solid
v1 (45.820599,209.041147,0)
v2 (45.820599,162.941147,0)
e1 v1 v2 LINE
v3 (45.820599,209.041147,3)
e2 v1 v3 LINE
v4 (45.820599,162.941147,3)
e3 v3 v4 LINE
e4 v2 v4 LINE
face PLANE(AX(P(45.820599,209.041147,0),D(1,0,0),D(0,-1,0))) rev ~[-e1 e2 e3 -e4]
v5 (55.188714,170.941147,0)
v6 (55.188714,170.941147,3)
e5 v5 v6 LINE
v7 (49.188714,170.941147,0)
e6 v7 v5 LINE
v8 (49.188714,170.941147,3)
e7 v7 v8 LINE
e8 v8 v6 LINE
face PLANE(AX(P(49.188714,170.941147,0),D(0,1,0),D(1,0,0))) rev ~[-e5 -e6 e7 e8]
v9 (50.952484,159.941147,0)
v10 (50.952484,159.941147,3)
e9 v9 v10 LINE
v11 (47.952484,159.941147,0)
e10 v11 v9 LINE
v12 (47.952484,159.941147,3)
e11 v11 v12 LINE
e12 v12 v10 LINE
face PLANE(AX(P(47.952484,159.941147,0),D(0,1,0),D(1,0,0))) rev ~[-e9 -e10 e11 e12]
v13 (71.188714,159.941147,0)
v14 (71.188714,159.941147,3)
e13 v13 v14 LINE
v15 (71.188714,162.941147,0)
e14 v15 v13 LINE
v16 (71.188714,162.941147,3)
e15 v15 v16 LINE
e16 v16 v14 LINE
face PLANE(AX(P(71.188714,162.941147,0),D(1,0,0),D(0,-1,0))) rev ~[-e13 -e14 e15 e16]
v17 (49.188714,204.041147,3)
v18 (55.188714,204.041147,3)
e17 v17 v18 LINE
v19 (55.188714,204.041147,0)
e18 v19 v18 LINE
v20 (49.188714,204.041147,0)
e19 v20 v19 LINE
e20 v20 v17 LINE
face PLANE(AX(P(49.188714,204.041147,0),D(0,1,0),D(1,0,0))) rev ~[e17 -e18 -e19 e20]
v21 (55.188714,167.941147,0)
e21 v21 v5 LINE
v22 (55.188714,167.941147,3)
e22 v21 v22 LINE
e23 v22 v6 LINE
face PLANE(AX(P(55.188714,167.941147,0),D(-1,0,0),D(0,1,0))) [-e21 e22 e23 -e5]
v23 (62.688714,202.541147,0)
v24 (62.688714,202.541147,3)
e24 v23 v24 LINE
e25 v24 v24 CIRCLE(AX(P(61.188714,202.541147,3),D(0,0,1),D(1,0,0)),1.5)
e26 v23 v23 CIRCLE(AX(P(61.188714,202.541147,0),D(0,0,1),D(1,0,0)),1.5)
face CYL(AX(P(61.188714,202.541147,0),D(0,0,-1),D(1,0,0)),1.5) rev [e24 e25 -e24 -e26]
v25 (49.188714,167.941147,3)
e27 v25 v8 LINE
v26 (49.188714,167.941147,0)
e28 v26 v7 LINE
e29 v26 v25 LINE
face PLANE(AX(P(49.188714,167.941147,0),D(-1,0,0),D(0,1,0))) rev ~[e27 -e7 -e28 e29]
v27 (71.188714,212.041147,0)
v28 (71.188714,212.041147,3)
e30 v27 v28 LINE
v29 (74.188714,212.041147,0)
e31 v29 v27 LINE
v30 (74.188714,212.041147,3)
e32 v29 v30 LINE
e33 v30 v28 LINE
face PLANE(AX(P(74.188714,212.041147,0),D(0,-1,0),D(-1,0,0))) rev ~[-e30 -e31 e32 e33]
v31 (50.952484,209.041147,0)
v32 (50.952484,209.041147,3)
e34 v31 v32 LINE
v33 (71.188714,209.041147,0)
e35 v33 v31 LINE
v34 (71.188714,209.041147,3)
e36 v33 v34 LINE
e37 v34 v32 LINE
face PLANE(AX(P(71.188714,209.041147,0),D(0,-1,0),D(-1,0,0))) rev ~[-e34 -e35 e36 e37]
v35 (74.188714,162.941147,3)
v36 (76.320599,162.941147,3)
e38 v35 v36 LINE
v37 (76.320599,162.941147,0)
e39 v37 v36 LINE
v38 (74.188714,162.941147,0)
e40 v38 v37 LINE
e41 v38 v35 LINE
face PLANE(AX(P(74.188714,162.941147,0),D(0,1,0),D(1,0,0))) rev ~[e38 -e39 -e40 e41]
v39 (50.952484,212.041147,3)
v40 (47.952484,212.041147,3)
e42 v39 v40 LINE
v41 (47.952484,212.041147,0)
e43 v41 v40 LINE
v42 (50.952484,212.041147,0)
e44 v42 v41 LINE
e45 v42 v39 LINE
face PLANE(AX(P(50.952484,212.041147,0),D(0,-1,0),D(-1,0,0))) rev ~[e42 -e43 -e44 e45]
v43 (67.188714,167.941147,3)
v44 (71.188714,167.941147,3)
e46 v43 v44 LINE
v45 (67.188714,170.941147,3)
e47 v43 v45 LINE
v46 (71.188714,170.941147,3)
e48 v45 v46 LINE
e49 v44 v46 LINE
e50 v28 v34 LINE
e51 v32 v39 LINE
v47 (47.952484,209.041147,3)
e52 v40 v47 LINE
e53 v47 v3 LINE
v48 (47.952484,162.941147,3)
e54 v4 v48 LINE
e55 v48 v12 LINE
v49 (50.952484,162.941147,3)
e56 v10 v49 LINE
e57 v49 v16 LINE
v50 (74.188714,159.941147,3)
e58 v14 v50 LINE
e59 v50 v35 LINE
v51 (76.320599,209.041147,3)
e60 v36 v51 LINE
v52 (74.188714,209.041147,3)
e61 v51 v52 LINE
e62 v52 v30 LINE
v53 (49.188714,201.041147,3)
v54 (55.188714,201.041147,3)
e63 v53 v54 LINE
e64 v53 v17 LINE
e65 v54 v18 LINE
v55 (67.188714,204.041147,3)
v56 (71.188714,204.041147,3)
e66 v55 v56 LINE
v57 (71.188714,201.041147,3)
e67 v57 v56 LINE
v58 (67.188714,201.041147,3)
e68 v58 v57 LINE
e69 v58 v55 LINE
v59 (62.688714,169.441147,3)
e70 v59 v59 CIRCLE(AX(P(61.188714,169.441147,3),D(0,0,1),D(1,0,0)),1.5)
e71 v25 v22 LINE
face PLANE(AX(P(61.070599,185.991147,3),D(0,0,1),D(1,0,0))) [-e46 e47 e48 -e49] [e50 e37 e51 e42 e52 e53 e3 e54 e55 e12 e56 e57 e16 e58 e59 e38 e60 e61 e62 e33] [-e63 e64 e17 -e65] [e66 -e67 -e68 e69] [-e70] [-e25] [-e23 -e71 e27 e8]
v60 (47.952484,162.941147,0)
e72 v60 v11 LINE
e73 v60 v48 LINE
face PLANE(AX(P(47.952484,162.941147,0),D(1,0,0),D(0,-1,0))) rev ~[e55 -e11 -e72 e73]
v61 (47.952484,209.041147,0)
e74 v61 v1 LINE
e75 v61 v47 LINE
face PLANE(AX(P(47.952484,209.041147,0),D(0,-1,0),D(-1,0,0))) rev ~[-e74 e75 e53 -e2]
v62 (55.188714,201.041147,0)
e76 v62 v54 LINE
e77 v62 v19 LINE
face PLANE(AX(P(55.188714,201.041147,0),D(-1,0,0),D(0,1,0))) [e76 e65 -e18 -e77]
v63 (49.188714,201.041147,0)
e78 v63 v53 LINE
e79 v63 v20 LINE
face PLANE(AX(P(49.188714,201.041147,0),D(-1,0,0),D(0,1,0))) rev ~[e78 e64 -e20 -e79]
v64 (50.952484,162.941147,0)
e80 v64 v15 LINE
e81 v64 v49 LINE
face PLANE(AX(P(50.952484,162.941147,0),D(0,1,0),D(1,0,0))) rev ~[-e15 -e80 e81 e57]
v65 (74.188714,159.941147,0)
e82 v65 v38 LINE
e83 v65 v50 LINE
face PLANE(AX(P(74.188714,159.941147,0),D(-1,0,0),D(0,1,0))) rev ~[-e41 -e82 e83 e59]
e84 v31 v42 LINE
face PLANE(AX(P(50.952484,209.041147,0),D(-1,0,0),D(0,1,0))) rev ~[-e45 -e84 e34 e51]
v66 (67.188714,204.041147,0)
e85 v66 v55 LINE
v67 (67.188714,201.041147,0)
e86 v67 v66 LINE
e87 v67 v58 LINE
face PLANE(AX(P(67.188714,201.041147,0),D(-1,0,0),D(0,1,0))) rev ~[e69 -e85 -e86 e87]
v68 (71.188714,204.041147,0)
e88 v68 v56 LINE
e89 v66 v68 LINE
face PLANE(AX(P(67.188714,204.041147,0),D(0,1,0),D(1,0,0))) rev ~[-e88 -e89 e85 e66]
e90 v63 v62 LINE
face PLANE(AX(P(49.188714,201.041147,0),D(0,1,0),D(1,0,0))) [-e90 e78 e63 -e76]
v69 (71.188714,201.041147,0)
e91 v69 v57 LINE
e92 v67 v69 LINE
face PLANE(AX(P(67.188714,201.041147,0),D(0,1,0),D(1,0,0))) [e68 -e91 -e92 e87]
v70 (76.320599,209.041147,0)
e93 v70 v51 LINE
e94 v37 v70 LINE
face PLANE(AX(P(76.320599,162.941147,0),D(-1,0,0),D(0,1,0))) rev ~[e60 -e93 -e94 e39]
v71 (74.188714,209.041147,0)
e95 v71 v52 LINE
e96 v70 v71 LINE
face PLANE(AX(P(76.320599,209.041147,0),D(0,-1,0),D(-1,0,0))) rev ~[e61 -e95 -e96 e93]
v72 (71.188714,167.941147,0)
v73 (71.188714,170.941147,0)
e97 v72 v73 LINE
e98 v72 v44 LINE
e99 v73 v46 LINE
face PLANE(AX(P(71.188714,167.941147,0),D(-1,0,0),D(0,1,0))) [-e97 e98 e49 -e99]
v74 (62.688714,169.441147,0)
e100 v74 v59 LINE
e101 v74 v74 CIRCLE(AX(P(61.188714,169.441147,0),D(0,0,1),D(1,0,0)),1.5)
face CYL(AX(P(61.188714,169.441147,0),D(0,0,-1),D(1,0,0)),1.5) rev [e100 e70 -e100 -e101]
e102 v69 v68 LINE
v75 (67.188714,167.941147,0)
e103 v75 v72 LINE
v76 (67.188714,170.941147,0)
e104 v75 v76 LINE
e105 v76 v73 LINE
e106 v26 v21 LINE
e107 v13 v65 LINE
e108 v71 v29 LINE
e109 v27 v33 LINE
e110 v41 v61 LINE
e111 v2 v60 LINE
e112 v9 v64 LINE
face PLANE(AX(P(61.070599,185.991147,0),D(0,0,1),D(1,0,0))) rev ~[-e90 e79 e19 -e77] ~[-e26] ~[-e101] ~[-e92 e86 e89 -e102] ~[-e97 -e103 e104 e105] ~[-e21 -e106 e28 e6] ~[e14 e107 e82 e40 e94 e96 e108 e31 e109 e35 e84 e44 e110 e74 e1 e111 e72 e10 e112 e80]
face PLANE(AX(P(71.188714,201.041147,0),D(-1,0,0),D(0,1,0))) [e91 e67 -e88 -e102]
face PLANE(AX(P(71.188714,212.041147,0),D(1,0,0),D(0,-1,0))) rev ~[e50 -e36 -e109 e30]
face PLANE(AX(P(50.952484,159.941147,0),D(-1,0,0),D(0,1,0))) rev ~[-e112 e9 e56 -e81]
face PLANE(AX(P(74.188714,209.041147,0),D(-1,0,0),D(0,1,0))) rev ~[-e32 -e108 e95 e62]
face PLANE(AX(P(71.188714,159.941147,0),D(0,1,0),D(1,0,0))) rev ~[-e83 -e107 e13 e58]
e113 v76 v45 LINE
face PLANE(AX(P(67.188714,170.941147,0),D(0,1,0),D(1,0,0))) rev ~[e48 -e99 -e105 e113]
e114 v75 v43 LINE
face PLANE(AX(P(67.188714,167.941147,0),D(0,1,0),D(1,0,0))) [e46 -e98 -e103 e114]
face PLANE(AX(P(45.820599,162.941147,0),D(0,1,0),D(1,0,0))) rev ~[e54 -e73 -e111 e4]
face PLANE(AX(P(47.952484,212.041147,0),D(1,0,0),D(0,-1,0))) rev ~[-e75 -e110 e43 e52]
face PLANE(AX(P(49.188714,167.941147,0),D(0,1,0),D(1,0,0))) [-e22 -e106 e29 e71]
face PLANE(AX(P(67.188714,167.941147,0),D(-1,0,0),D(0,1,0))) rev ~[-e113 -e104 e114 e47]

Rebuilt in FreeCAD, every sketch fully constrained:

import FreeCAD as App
import Part
import Sketcher
from FreeCAD import Vector


def add_polygon(sketch, points):
    """Adds a closed chain of lines whose ends are joined by coincident constraints."""
    first, n = sketch.GeometryCount, len(points)
    for a, b in zip(points, points[1:] + points[:1]):
        sketch.addGeometry(Part.LineSegment(App.Vector(*a, 0), App.Vector(*b, 0)), False)
    for i in range(n):
        sketch.addConstraint(Sketcher.Constraint("Coincident", first + i, 2, first + (i + 1) % n, 1))

doc = App.newDocument("Part")
body = doc.addObject("PartDesign::Body", "Body")

sketch1 = body.newObject("Sketcher::SketchObject", "Sketch")
sketch1.AttachmentSupport = (doc.getObject("XY_Plane"), [""])
sketch1.MapMode = "FlatFace"
add_polygon(sketch1, [(71.2, 159.9), (74.2, 159.9), (74.2, 162.9), (76.3, 162.9), (76.3, 209), (74.2, 209), (74.2, 212), (71.2, 212), (71.2, 209), (51, 209), (51, 212), (48, 212), (48, 209), (45.8, 209), (45.8, 162.9), (48, 162.9), (48, 159.9), (51, 159.9), (51, 162.9), (71.2, 162.9)])
add_polygon(sketch1, [(55.2, 167.9), (49.2, 167.9), (49.2, 170.9), (55.2, 170.9)])
sketch1.addGeometry(Part.Circle(Vector(61.2, 169.4, 0), Vector(0, 0, 1), 1.5), False)
add_polygon(sketch1, [(71.2, 167.9), (67.2, 167.9), (67.2, 170.9), (71.2, 170.9)])
add_polygon(sketch1, [(55.2, 201), (49.2, 201), (49.2, 204), (55.2, 204)])
sketch1.addGeometry(Part.Circle(Vector(61.2, 202.5, 0), Vector(0, 0, 1), 1.5), False)
add_polygon(sketch1, [(71.2, 201), (67.2, 201), (67.2, 204), (71.2, 204)])
sketch1.addConstraint(Sketcher.Constraint("Horizontal", 0))
sketch1.addConstraint(Sketcher.Constraint("Vertical", 1))
sketch1.addConstraint(Sketcher.Constraint("Horizontal", 2))
sketch1.addConstraint(Sketcher.Constraint("Vertical", 3))
sketch1.addConstraint(Sketcher.Constraint("Horizontal", 4))
sketch1.addConstraint(Sketcher.Constraint("Vertical", 5))
sketch1.addConstraint(Sketcher.Constraint("Horizontal", 6))
sketch1.addConstraint(Sketcher.Constraint("Vertical", 7))
sketch1.addConstraint(Sketcher.Constraint("Horizontal", 8))
sketch1.addConstraint(Sketcher.Constraint("Vertical", 9))
sketch1.addConstraint(Sketcher.Constraint("Horizontal", 10))
sketch1.addConstraint(Sketcher.Constraint("Vertical", 11))
sketch1.addConstraint(Sketcher.Constraint("Horizontal", 12))
sketch1.addConstraint(Sketcher.Constraint("Vertical", 13))
sketch1.addConstraint(Sketcher.Constraint("Horizontal", 14))
sketch1.addConstraint(Sketcher.Constraint("Vertical", 15))
sketch1.addConstraint(Sketcher.Constraint("Horizontal", 16))
sketch1.addConstraint(Sketcher.Constraint("Vertical", 17))
sketch1.addConstraint(Sketcher.Constraint("Horizontal", 18))
sketch1.addConstraint(Sketcher.Constraint("Vertical", 19))
sketch1.addConstraint(Sketcher.Constraint("Horizontal", 20))
sketch1.addConstraint(Sketcher.Constraint("Vertical", 21))
sketch1.addConstraint(Sketcher.Constraint("Horizontal", 22))
sketch1.addConstraint(Sketcher.Constraint("Vertical", 23))
sketch1.addConstraint(Sketcher.Constraint("Horizontal", 25))
sketch1.addConstraint(Sketcher.Constraint("Vertical", 26))
sketch1.addConstraint(Sketcher.Constraint("Horizontal", 27))
sketch1.addConstraint(Sketcher.Constraint("Vertical", 28))
sketch1.addConstraint(Sketcher.Constraint("Horizontal", 29))
sketch1.addConstraint(Sketcher.Constraint("Vertical", 30))
sketch1.addConstraint(Sketcher.Constraint("Horizontal", 31))
sketch1.addConstraint(Sketcher.Constraint("Vertical", 32))
sketch1.addConstraint(Sketcher.Constraint("Horizontal", 34))
sketch1.addConstraint(Sketcher.Constraint("Vertical", 35))
sketch1.addConstraint(Sketcher.Constraint("Horizontal", 36))
sketch1.addConstraint(Sketcher.Constraint("Vertical", 37))
sketch1.addConstraint(Sketcher.Constraint("Equal", 24, 33))
sketch1.addConstraint(Sketcher.Constraint("Horizontal", 4, 2, 7, 2))
sketch1.addConstraint(Sketcher.Constraint("Horizontal", 6, 2, 9, 2))
sketch1.addConstraint(Sketcher.Constraint("Horizontal", 8, 2, 11, 2))
sketch1.addConstraint(Sketcher.Constraint("Horizontal", 2, 2, 13, 2))
sketch1.addConstraint(Sketcher.Constraint("Horizontal", 0, 2, 15, 2))
sketch1.addConstraint(Sketcher.Constraint("Horizontal", 14, 2, 17, 2))
sketch1.addConstraint(Sketcher.Constraint("Horizontal", 23, 2, 25, 2))
sketch1.addConstraint(Sketcher.Constraint("Horizontal", 22, 2, 26, 2))
sketch1.addConstraint(Sketcher.Constraint("Horizontal", 32, 2, 34, 2))
sketch1.addConstraint(Sketcher.Constraint("Horizontal", 31, 2, 35, 2))
sketch1.addConstraint(Sketcher.Constraint("Vertical", 24, 3, 33, 3))
sketch1.addConstraint(Sketcher.Constraint("Vertical", 1, 2, 4, 2))
sketch1.addConstraint(Sketcher.Constraint("Vertical", 11, 2, 14, 2))
sketch1.addConstraint(Sketcher.Constraint("Vertical", 9, 2, 16, 2))
sketch1.addConstraint(Sketcher.Constraint("Vertical", 7, 2, 18, 2))
sketch1.addConstraint(Sketcher.Constraint("Vertical", 19, 2, 27, 2))
sketch1.addConstraint(Sketcher.Constraint("Vertical", 21, 2, 29, 2))
sketch1.addConstraint(Sketcher.Constraint("Vertical", 23, 2, 31, 2))
sketch1.addConstraint(Sketcher.Constraint("Vertical", 26, 2, 34, 2))
sketch1.addConstraint(Sketcher.Constraint("Vertical", 28, 2, 36, 2))
sketch1.addConstraint(Sketcher.Constraint("Equal", 6, 10))
sketch1.addConstraint(Sketcher.Constraint("Equal", 4, 12))
sketch1.addConstraint(Sketcher.Constraint("Equal", 16, 1))
sketch1.addConstraint(Sketcher.Constraint("Equal", 1, 5))
sketch1.addConstraint(Sketcher.Constraint("Equal", 19, 21))
sketch1.addConstraint(Sketcher.Constraint("Equal", 28, 30))
sketch1.addConstraint(Sketcher.Constraint("Diameter", 24, 3.0))
sketch1.addConstraint(Sketcher.Constraint("DistanceX", 0, 1, 0, 2, 3.0))
sketch1.addConstraint(Sketcher.Constraint("DistanceX", 20, 2, 20, 1, 6.0))
sketch1.addConstraint(Sketcher.Constraint("DistanceX", 25, 2, 25, 1, 4.0))
sketch1.addConstraint(Sketcher.Constraint("DistanceY", 3, 1, 3, 2, 46.1))
sketch1.addConstraint(Sketcher.Constraint("DistanceX", 24, 3, 0, 2, 13.0))
sketch1.addConstraint(Sketcher.Constraint("DistanceY", 14, 2, 20, 2, 5.0))
sketch1.addConstraint(Sketcher.Constraint("DistanceX", 22, 2, 24, 3, 6.0))
sketch1.addConstraint(Sketcher.Constraint("DistanceY", 29, 2, 11, 2, 8.0))
sketch1.addConstraint(Sketcher.Constraint("DistanceY", 24, 3, 33, 3, 33.1))
sketch1.addConstraint(Sketcher.Constraint("DistanceY", 0, 2, 24, 3, 9.5))
sketch1.addConstraint(Sketcher.Constraint("DistanceX", 13, 2, 2, 2, 30.500001))
sketch1.addConstraint(Sketcher.Constraint("DistanceX", 8, 2, 8, 1, 20.236231))
sketch1.addConstraint(Sketcher.Constraint("DistanceX", -1, 1, 2, 2, 76.320599))
sketch1.addConstraint(Sketcher.Constraint("DistanceY", -1, 1, 24, 3, 169.441147))
pad1 = body.newObject("PartDesign::Pad", "Pad")
pad1.Profile = sketch1
pad1.Length = 3

doc.recompute()
